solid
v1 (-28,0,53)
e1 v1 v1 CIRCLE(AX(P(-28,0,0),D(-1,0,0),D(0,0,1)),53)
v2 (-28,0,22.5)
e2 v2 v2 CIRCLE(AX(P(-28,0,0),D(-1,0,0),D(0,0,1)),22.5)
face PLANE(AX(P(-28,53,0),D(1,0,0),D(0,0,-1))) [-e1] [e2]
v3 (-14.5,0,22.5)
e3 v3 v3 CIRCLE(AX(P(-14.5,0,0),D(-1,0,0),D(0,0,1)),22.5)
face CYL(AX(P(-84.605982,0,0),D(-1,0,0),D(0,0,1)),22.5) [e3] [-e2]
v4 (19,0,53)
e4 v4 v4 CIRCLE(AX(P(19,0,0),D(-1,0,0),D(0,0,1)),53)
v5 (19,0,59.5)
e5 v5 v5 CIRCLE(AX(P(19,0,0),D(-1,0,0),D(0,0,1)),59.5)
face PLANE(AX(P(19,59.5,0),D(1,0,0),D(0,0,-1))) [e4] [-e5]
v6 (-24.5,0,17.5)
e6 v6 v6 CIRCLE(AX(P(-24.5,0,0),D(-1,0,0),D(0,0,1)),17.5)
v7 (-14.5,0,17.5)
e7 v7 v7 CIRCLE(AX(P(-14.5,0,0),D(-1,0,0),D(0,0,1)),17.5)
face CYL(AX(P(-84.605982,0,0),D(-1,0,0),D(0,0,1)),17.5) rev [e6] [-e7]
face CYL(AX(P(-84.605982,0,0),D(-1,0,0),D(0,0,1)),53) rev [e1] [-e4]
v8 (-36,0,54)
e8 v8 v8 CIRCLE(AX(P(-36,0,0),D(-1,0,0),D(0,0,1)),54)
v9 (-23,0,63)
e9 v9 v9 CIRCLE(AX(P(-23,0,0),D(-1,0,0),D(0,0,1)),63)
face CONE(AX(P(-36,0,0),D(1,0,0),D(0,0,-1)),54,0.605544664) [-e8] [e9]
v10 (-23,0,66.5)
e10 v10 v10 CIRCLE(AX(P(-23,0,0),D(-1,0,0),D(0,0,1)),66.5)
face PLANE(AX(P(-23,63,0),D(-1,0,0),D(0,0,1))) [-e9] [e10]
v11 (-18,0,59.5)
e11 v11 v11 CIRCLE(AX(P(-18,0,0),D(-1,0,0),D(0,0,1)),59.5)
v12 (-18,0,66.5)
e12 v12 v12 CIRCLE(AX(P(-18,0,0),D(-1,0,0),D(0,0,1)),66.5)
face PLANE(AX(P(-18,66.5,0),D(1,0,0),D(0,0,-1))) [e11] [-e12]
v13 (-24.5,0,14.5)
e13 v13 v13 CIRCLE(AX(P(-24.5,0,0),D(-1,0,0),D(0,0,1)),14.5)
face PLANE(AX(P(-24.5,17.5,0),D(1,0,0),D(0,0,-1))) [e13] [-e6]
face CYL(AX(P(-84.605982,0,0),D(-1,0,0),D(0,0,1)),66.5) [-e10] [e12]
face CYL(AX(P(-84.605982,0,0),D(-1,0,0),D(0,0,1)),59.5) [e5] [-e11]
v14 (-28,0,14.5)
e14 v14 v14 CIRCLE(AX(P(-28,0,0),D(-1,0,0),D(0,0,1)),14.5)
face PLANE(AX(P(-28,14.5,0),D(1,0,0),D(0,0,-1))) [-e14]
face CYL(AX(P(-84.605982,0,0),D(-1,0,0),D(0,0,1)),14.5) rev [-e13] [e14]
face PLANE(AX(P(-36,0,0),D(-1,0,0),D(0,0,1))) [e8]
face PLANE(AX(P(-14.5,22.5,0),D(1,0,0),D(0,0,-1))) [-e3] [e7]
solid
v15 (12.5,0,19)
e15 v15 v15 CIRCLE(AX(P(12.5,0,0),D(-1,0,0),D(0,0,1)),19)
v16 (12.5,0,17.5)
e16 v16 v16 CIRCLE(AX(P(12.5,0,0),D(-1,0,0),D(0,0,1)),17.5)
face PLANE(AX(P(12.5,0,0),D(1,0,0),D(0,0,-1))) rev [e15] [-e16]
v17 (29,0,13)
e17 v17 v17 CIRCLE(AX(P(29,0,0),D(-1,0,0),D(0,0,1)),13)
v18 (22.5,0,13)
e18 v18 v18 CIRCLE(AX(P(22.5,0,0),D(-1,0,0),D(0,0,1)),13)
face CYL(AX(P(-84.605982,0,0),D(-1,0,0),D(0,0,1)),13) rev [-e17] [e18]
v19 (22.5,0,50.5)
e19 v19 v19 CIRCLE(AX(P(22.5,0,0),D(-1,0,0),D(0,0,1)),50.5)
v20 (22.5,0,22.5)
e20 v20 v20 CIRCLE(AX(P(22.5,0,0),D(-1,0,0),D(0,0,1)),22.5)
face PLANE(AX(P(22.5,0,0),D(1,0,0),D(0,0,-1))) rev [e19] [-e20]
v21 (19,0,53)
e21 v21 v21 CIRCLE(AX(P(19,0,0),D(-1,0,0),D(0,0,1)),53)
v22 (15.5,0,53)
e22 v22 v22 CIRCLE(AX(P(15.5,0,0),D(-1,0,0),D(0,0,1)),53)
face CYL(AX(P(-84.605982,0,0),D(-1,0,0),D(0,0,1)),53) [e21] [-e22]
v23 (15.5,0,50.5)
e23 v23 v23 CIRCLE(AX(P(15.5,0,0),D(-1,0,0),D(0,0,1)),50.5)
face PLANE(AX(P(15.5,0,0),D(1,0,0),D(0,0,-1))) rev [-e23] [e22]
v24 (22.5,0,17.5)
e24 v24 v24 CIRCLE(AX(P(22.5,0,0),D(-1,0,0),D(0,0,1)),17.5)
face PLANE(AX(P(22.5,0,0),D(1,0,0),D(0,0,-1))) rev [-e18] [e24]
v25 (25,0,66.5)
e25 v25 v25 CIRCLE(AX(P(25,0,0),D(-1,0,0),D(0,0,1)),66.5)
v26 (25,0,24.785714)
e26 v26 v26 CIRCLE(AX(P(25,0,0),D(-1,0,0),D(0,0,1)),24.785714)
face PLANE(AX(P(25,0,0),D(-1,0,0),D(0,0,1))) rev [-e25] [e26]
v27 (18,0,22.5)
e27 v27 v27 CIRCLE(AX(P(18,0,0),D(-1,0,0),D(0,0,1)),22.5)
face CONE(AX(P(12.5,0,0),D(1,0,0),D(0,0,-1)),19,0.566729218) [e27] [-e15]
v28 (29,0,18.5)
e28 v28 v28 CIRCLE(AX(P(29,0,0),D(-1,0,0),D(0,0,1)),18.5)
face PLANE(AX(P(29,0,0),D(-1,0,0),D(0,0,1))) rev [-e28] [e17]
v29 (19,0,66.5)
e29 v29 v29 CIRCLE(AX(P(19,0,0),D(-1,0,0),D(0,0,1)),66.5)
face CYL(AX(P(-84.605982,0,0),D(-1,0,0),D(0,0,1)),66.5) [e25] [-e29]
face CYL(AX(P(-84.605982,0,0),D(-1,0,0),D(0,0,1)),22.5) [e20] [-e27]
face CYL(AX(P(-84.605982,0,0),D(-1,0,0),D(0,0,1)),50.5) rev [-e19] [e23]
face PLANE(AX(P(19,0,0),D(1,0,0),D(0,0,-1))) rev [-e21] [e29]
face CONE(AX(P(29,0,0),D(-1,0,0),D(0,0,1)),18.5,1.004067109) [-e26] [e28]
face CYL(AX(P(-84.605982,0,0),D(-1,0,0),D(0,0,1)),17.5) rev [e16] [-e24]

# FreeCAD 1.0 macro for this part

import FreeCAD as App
import Part
import Sketcher

doc = App.newDocument("Part")
body = doc.addObject("PartDesign::Body", "Body")

sketch1 = body.newObject("Sketcher::SketchObject", "Sketch")
sketch1.AttachmentSupport = (doc.getObject("XY_Plane"), [""])
sketch1.MapMode = "FlatFace"
sketch1.addGeometry(Part.LineSegment(App.Vector(-36, 54, 0), App.Vector(-36, 0, 0)), False)
sketch1.addGeometry(Part.LineSegment(App.Vector(-36, 0, 0), App.Vector(-28, 0, 0)), False)
sketch1.addGeometry(Part.LineSegment(App.Vector(-28, 0, 0), App.Vector(-28, 14.5, 0)), False)
sketch1.addGeometry(Part.LineSegment(App.Vector(-28, 14.5, 0), App.Vector(-24.5, 14.5, 0)), False)
sketch1.addGeometry(Part.LineSegment(App.Vector(-24.5, 14.5, 0), App.Vector(-24.5, 17.5, 0)), False)
sketch1.addGeometry(Part.LineSegment(App.Vector(-24.5, 17.5, 0), App.Vector(-14.5, 17.5, 0)), False)
sketch1.addGeometry(Part.LineSegment(App.Vector(-14.5, 17.5, 0), App.Vector(-14.5, 22.5, 0)), False)
sketch1.addGeometry(Part.LineSegment(App.Vector(-14.5, 22.5, 0), App.Vector(-28, 22.5, 0)), False)
sketch1.addGeometry(Part.LineSegment(App.Vector(-28, 22.5, 0), App.Vector(-28, 53, 0)), False)
sketch1.addGeometry(Part.LineSegment(App.Vector(-28, 53, 0), App.Vector(19, 53, 0)), False)
sketch1.addGeometry(Part.LineSegment(App.Vector(19, 53, 0), App.Vector(19, 59.5, 0)), False)
sketch1.addGeometry(Part.LineSegment(App.Vector(19, 59.5, 0), App.Vector(-18, 59.5, 0)), False)
sketch1.addGeometry(Part.LineSegment(App.Vector(-18, 59.5, 0), App.Vector(-18, 66.5, 0)), False)
sketch1.addGeometry(Part.LineSegment(App.Vector(-18, 66.5, 0), App.Vector(-23, 66.5, 0)), False)
sketch1.addGeometry(Part.LineSegment(App.Vector(-23, 66.5, 0), App.Vector(-23, 63, 0)), False)
sketch1.addGeometry(Part.LineSegment(App.Vector(-23, 63, 0), App.Vector(-36, 54, 0)), False)
sketch1.addConstraint(Sketcher.Constraint("Coincident", 0, 2, 1, 1))
sketch1.addConstraint(Sketcher.Constraint("Coincident", 1, 2, 2, 1))
sketch1.addConstraint(Sketcher.Constraint("Coincident", 2, 2, 3, 1))
sketch1.addConstraint(Sketcher.Constraint("Coincident", 3, 2, 4, 1))
sketch1.addConstraint(Sketcher.Constraint("Coincident", 4, 2, 5, 1))
sketch1.addConstraint(Sketcher.Constraint("Coincident", 5, 2, 6, 1))
sketch1.addConstraint(Sketcher.Constraint("Coincident", 6, 2, 7, 1))
sketch1.addConstraint(Sketcher.Constraint("Coincident", 7, 2, 8, 1))
sketch1.addConstraint(Sketcher.Constraint("Coincident", 8, 2, 9, 1))
sketch1.addConstraint(Sketcher.Constraint("Coincident", 9, 2, 10, 1))
sketch1.addConstraint(Sketcher.Constraint("Coincident", 10, 2, 11, 1))
sketch1.addConstraint(Sketcher.Constraint("Coincident", 11, 2, 12, 1))
sketch1.addConstraint(Sketcher.Constraint("Coincident", 12, 2, 13, 1))
sketch1.addConstraint(Sketcher.Constraint("Coincident", 13, 2, 14, 1))
sketch1.addConstraint(Sketcher.Constraint("Coincident", 14, 2, 15, 1))
sketch1.addConstraint(Sketcher.Constraint("Coincident", 15, 2, 0, 1))
sketch1.addConstraint(Sketcher.Constraint("Vertical", 0))
sketch1.addConstraint(Sketcher.Constraint("Horizontal", 1))
sketch1.addConstraint(Sketcher.Constraint("Vertical", 2))
sketch1.addConstraint(Sketcher.Constraint("Horizontal", 3))
sketch1.addConstraint(Sketcher.Constraint("Vertical", 4))
sketch1.addConstraint(Sketcher.Constraint("Horizontal", 5))
sketch1.addConstraint(Sketcher.Constraint("Vertical", 6))
sketch1.addConstraint(Sketcher.Constraint("Horizontal", 7))
sketch1.addConstraint(Sketcher.Constraint("Vertical", 8))
sketch1.addConstraint(Sketcher.Constraint("Horizontal", 9))
sketch1.addConstraint(Sketcher.Constraint("Vertical", 10))
sketch1.addConstraint(Sketcher.Constraint("Horizontal", 11))
sketch1.addConstraint(Sketcher.Constraint("Vertical", 12))
sketch1.addConstraint(Sketcher.Constraint("Horizontal", 13))
sketch1.addConstraint(Sketcher.Constraint("Vertical", 14))
sketch1.addConstraint(Sketcher.Constraint("PointOnObject", 0, 2, -1))
sketch1.addConstraint(Sketcher.Constraint("Vertical", 2, 2, 7, 2))
sketch1.addConstraint(Sketcher.Constraint("Equal", 13, 6))
sketch1.addConstraint(Sketcher.Constraint("Equal", 3, 14))
sketch1.addConstraint(Sketcher.Constraint("DistanceX", 1, 1, 1, 2, 8.0))
sketch1.addConstraint(Sketcher.Constraint("DistanceX", 5, 1, 5, 2, 10.0))
sketch1.addConstraint(Sketcher.Constraint("DistanceX", 9, 1, 9, 2, 47.0))
sketch1.addConstraint(Sketcher.Constraint("DistanceX", 11, 2, 11, 1, 37.0))
sketch1.addConstraint(Sketcher.Constraint("DistanceX", 13, 2, 13, 1, 5.0))
sketch1.addConstraint(Sketcher.Constraint("DistanceY", 0, 2, 0, 1, 54.0))
sketch1.addConstraint(Sketcher.Constraint("DistanceY", 4, 1, 4, 2, 3.0))
sketch1.addConstraint(Sketcher.Constraint("DistanceY", 12, 1, 12, 2, 7.0))
sketch1.addConstraint(Sketcher.Constraint("DistanceX", 3, 1, 3, 2, 3.5))
sketch1.addConstraint(Sketcher.Constraint("DistanceY", 2, 1, 2, 2, 14.5))
sketch1.addConstraint(Sketcher.Constraint("DistanceY", 8, 1, 8, 2, 30.5))
sketch1.addConstraint(Sketcher.Constraint("DistanceY", 10, 1, 10, 2, 6.5))
sketch1.addConstraint(Sketcher.Constraint("DistanceX", 0, 2, -1, 1, 36.0))
revolution = body.newObject("PartDesign::Revolution", "Revolution")
revolution.Profile = sketch1
revolution.ReferenceAxis = (sketch1, ["H_Axis"])
revolution.Angle = 360
body2 = doc.addObject("PartDesign::Body", "Body001")

sketch2 = body2.newObject("Sketcher::SketchObject", "Sketch001")
sketch2.AttachmentSupport = (doc.getObject("XY_Plane001"), [""])
sketch2.MapMode = "FlatFace"
sketch2.addGeometry(Part.LineSegment(App.Vector(19, 66.5, 0), App.Vector(19, 53, 0)), False)
sketch2.addGeometry(Part.LineSegment(App.Vector(19, 53, 0), App.Vector(15.5, 53, 0)), False)
sketch2.addGeometry(Part.LineSegment(App.Vector(15.5, 53, 0), App.Vector(15.5, 50.5, 0)), False)
sketch2.addGeometry(Part.LineSegment(App.Vector(15.5, 50.5, 0), App.Vector(22.5, 50.5, 0)), False)
sketch2.addGeometry(Part.LineSegment(App.Vector(22.5, 50.5, 0), App.Vector(22.5, 22.5, 0)), False)
sketch2.addGeometry(Part.LineSegment(App.Vector(22.5, 22.5, 0), App.Vector(18, 22.5, 0)), False)
sketch2.addGeometry(Part.LineSegment(App.Vector(18, 22.5, 0), App.Vector(12.5, 19, 0)), False)
sketch2.addGeometry(Part.LineSegment(App.Vector(12.5, 19, 0), App.Vector(12.5, 17.5, 0)), False)
sketch2.addGeometry(Part.LineSegment(App.Vector(12.5, 17.5, 0), App.Vector(22.5, 17.5, 0)), False)
sketch2.addGeometry(Part.LineSegment(App.Vector(22.5, 17.5, 0), App.Vector(22.5, 13, 0)), False)
sketch2.addGeometry(Part.LineSegment(App.Vector(22.5, 13, 0), App.Vector(29, 13, 0)), False)
sketch2.addGeometry(Part.LineSegment(App.Vector(29, 13, 0), App.Vector(29, 18.5, 0)), False)
sketch2.addGeometry(Part.LineSegment(App.Vector(29, 18.5, 0), App.Vector(25, 24.785714, 0)), False)
sketch2.addGeometry(Part.LineSegment(App.Vector(25, 24.785714, 0), App.Vector(25, 66.5, 0)), False)
sketch2.addGeometry(Part.LineSegment(App.Vector(25, 66.5, 0), App.Vector(19, 66.5, 0)), False)
sketch2.addConstraint(Sketcher.Constraint("Coincident", 0, 2, 1, 1))
sketch2.addConstraint(Sketcher.Constraint("Coincident", 1, 2, 2, 1))
sketch2.addConstraint(Sketcher.Constraint("Coincident", 2, 2, 3, 1))
sketch2.addConstraint(Sketcher.Constraint("Coincident", 3, 2, 4, 1))
sketch2.addConstraint(Sketcher.Constraint("Coincident", 4, 2, 5, 1))
sketch2.addConstraint(Sketcher.Constraint("Coincident", 5, 2, 6, 1))
sketch2.addConstraint(Sketcher.Constraint("Coincident", 6, 2, 7, 1))
sketch2.addConstraint(Sketcher.Constraint("Coincident", 7, 2, 8, 1))
sketch2.addConstraint(Sketcher.Constraint("Coincident", 8, 2, 9, 1))
sketch2.addConstraint(Sketcher.Constraint("Coincident", 9, 2, 10, 1))
sketch2.addConstraint(Sketcher.Constraint("Coincident", 10, 2, 11, 1))
sketch2.addConstraint(Sketcher.Constraint("Coincident", 11, 2, 12, 1))
sketch2.addConstraint(Sketcher.Constraint("Coincident", 12, 2, 13, 1))
sketch2.addConstraint(Sketcher.Constraint("Coincident", 13, 2, 14, 1))
sketch2.addConstraint(Sketcher.Constraint("Coincident", 14, 2, 0, 1))
sketch2.addConstraint(Sketcher.Constraint("Vertical", 0))
sketch2.addConstraint(Sketcher.Constraint("Horizontal", 1))
sketch2.addConstraint(Sketcher.Constraint("Vertical", 2))
sketch2.addConstraint(Sketcher.Constraint("Horizontal", 3))
sketch2.addConstraint(Sketcher.Constraint("Vertical", 4))
sketch2.addConstraint(Sketcher.Constraint("Horizontal", 5))
sketch2.addConstraint(Sketcher.Constraint("Vertical", 7))
sketch2.addConstraint(Sketcher.Constraint("Horizontal", 8))
sketch2.addConstraint(Sketcher.Constraint("Vertical", 9))
sketch2.addConstraint(Sketcher.Constraint("Horizontal", 10))
sketch2.addConstraint(Sketcher.Constraint("Vertical", 11))
sketch2.addConstraint(Sketcher.Constraint("Vertical", 13))
sketch2.addConstraint(Sketcher.Constraint("Horizontal", 14))
sketch2.addConstraint(Sketcher.Constraint("Perpendicular", 6, 12))
sketch2.addConstraint(Sketcher.Constraint("Vertical", 4, 2, 8, 2))
sketch2.addConstraint(Sketcher.Constraint("Equal", 5, 9))
sketch2.addConstraint(Sketcher.Constraint("DistanceX", 3, 1, 3, 2, 7.0))
sketch2.addConstraint(Sketcher.Constraint("DistanceX", 8, 1, 8, 2, 10.0))
sketch2.addConstraint(Sketcher.Constraint("DistanceX", 14, 2, 14, 1, 6.0))
sketch2.addConstraint(Sketcher.Constraint("DistanceY", 4, 2, 4, 1, 28.0))
sketch2.addConstraint(Sketcher.Constraint("DistanceX", 1, 2, 1, 1, 3.5))
sketch2.addConstraint(Sketcher.Constraint("DistanceX", 5, 2, 5, 1, 4.5))
sketch2.addConstraint(Sketcher.Constraint("DistanceX", 10, 1, 10, 2, 6.5))
sketch2.addConstraint(Sketcher.Constraint("DistanceY", 0, 2, 0, 1, 13.5))
sketch2.addConstraint(Sketcher.Constraint("DistanceY", 2, 2, 2, 1, 2.5))
sketch2.addConstraint(Sketcher.Constraint("DistanceY", 7, 2, 7, 1, 1.5))
sketch2.addConstraint(Sketcher.Constraint("DistanceY", 11, 1, 11, 2, 5.5))
sketch2.addConstraint(Sketcher.Constraint("DistanceX", -1, 1, 0, 2, 19.0))
sketch2.addConstraint(Sketcher.Constraint("DistanceY", -1, 1, 0, 2, 53.0))
sketch2.addConstraint(Sketcher.Constraint("DistanceY", -1, 1, 6, 2, 19.0))
revolution2 = body2.newObject("PartDesign::Revolution", "Revolution001")
revolution2.Profile = sketch2
revolution2.ReferenceAxis = (sketch2, ["H_Axis"])
revolution2.Angle = 360

doc.recompute()
